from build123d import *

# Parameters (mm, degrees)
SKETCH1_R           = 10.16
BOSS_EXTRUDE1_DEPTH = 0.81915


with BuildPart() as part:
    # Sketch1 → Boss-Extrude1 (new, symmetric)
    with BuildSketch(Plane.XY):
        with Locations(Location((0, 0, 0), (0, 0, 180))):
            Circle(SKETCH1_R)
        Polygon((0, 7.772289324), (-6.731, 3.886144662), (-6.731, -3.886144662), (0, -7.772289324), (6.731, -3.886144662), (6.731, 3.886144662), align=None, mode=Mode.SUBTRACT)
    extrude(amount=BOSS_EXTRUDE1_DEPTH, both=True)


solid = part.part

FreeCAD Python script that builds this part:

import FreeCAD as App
import Part
import Sketcher
Q = App.Units.Quantity

doc = App.newDocument("Part")
body = doc.addObject("PartDesign::Body", "Body")

sketch1 = body.newObject("Sketcher::SketchObject", "Sketch")
sketch1.AttachmentSupport = (doc.getObject("XY_Plane"), [""])
sketch1.MapMode = "FlatFace"
sketch1.addGeometry(Part.Circle(App.Vector(0, 0, 0), App.Vector(0, 0, 1), 10.16), False)
sketch1.addGeometry(Part.LineSegment(App.Vector(-6.731, 3.886145, 0), App.Vector(0, 7.772289, 0)), False)
sketch1.addGeometry(Part.LineSegment(App.Vector(0, 7.772289, 0), App.Vector(6.731, 3.886145, 0)), False)
sketch1.addGeometry(Part.LineSegment(App.Vector(6.731, 3.886145, 0), App.Vector(6.731, -3.886145, 0)), False)
sketch1.addGeometry(Part.LineSegment(App.Vector(6.731, -3.886145, 0), App.Vector(0, -7.772289, 0)), False)
sketch1.addGeometry(Part.LineSegment(App.Vector(0, -7.772289, 0), App.Vector(-6.731, -3.886145, 0)), False)
sketch1.addGeometry(Part.LineSegment(App.Vector(-6.731, -3.886145, 0), App.Vector(-6.731, 3.886145, 0)), False)
sketch1.addConstraint(Sketcher.Constraint("Coincident", 1, 2, 2, 1))
sketch1.addConstraint(Sketcher.Constraint("Coincident", 2, 2, 3, 1))
sketch1.addConstraint(Sketcher.Constraint("Coincident", 3, 2, 4, 1))
sketch1.addConstraint(Sketcher.Constraint("Coincident", 4, 2, 5, 1))
sketch1.addConstraint(Sketcher.Constraint("Coincident", 5, 2, 6, 1))
sketch1.addConstraint(Sketcher.Constraint("Coincident", 6, 2, 1, 1))
sketch1.addConstraint(Sketcher.Constraint("Vertical", 3))
sketch1.addConstraint(Sketcher.Constraint("Vertical", 6))
sketch1.addConstraint(Sketcher.Constraint("Coincident", 0, 3, -1, 1))
sketch1.addConstraint(Sketcher.Constraint("Symmetric", 1, 2, 4, 2, -1, 1))
sketch1.addConstraint(Sketcher.Constraint("Symmetric", 2, 2, 5, 2, -1, 1))
sketch1.addConstraint(Sketcher.Constraint("PointOnObject", 1, 2, -2))
sketch1.addConstraint(Sketcher.Constraint("Parallel", 1, 4))
sketch1.addConstraint(Sketcher.Constraint("Horizontal", 3, 2, 5, 2))
sketch1.addConstraint(Sketcher.Constraint("Diameter", 0, Q("0.8 in")))
sketch1.addConstraint(Sketcher.Constraint("Angle", 1, Q("30 deg")))
sketch1.addConstraint(Sketcher.Constraint("DistanceX", 5, 2, 3, 2, Q("0.53 in")))
sketch1.addConstraint(Sketcher.Constraint("DistanceY", 3, 2, 3, 1, Q("7.772289 mm")))
pad1 = body.newObject("PartDesign::Pad", "Pad")
pad1.Profile = sketch1
pad1.Length = Q("0.0645 in")
pad1.Midplane = True

doc.recompute()
